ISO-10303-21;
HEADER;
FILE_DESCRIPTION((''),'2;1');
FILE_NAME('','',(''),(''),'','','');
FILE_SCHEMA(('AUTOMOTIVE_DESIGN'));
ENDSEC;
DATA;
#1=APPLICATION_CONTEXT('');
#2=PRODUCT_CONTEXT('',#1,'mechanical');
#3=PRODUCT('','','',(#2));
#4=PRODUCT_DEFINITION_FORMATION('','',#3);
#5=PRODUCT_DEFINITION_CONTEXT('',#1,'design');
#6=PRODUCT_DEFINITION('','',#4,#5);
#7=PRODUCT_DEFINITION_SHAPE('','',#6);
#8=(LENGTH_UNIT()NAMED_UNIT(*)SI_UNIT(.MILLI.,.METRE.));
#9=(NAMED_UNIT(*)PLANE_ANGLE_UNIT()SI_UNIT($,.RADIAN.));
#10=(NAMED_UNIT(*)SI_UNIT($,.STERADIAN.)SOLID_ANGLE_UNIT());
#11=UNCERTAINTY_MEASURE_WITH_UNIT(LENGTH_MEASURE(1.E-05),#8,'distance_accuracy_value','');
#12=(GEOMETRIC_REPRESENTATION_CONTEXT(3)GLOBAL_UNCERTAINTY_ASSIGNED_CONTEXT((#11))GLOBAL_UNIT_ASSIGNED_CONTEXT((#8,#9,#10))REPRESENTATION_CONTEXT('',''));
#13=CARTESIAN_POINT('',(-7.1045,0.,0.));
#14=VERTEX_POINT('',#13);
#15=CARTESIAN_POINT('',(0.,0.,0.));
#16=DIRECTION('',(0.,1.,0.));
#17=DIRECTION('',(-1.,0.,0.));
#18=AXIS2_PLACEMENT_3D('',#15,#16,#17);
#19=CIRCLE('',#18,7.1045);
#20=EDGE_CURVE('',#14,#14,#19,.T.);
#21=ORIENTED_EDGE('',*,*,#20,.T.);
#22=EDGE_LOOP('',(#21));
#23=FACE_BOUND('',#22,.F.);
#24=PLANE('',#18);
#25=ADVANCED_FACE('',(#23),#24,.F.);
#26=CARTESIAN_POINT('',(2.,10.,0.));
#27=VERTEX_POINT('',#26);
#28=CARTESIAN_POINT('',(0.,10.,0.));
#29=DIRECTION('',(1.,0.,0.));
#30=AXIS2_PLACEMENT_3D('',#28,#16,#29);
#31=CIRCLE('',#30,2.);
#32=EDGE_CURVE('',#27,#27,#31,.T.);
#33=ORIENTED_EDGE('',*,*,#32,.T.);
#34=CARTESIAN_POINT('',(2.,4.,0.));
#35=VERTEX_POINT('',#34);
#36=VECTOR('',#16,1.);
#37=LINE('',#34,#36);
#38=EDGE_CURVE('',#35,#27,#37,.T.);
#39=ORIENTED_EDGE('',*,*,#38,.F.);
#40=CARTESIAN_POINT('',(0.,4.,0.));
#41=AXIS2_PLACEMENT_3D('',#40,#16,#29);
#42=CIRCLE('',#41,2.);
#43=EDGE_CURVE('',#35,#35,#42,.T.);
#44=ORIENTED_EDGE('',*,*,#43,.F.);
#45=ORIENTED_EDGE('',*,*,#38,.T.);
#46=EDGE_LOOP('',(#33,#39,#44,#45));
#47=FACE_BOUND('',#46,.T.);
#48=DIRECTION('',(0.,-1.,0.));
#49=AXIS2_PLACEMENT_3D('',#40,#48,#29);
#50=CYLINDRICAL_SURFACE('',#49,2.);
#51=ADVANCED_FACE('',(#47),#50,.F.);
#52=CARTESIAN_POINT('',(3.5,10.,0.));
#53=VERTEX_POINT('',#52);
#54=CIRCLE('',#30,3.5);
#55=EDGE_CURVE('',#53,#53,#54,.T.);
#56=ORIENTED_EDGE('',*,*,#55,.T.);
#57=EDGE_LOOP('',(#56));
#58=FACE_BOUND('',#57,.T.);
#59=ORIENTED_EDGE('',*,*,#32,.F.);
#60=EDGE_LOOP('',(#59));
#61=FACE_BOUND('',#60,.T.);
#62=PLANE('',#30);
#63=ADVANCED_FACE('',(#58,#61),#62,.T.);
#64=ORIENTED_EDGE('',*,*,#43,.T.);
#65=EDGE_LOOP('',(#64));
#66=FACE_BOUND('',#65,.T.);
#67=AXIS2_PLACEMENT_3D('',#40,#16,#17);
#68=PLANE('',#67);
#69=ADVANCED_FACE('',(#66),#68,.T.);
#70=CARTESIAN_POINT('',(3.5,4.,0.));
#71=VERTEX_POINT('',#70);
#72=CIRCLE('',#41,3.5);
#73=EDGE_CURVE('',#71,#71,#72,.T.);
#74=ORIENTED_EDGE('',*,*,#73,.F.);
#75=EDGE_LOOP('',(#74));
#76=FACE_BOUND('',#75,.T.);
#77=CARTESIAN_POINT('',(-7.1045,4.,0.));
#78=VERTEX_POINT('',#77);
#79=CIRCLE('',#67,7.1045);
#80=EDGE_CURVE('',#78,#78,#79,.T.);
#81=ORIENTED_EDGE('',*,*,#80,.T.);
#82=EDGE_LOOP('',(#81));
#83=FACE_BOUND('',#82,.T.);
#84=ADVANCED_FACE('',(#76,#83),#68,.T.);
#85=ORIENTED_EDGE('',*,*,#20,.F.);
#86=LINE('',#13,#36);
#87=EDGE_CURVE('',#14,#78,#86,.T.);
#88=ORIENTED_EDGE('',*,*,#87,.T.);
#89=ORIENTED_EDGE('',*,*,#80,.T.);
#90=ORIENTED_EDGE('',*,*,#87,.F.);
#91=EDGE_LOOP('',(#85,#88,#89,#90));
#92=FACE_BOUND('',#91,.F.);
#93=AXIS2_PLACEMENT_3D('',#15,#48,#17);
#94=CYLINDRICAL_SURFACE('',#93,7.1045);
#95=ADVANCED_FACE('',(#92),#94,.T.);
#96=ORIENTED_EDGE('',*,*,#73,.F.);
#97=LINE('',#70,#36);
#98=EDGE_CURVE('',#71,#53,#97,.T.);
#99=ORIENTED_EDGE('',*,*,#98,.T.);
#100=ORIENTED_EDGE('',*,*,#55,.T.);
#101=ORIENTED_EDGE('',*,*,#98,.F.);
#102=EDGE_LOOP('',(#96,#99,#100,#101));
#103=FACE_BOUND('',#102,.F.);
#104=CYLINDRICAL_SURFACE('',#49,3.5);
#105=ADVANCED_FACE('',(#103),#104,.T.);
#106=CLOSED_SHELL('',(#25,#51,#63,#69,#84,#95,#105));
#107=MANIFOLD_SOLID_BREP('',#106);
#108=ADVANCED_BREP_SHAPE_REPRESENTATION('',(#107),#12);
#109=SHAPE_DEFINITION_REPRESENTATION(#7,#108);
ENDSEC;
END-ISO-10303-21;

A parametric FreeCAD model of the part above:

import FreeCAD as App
import Part
import Sketcher

V = App.Vector
Q = App.Units.Quantity

doc = App.newDocument("Part")
body = doc.addObject("PartDesign::Body", "Body")

# Sketch on XZ plane
sketch1 = body.newObject("Sketcher::SketchObject", "Sketch")
sketch1.AttachmentSupport = (doc.getObject("XZ_Plane"), [""])
sketch1.MapMode = "FlatFace"
sketch1.addGeometry(Part.Circle(V(0, 0, 0), V(0, 0, 1), 7.1045), False)
sketch1.addConstraint([
    Sketcher.Constraint("Coincident", 0, 3, -1, 1),
    Sketcher.Constraint("Diameter", 0, Q("14.209 mm")),
])
pad1 = body.newObject("PartDesign::Pad", "Pad")
pad1.Profile = sketch1
pad1.Length = 4
pad1.Reversed = True

# Sketch on XZ plane
sketch2 = body.newObject("Sketcher::SketchObject", "Sketch001")
sketch2.AttachmentSupport = (doc.getObject("XZ_Plane"), [""])
sketch2.MapMode = "FlatFace"
sketch2.AttachmentOffset = App.Placement(V(0, 0, -4), App.Rotation())
sketch2.addGeometry([
    Part.Circle(V(0, 0, 0), V(0, 0, 1), 3.5),
    Part.Circle(V(0, 0, 0), V(0, 0, 1), 2),
], False)
sketch2.addConstraint([
    Sketcher.Constraint("Coincident", 0, 3, -1, 1),
    Sketcher.Constraint("Coincident", 1, 3, -1, 1),
    Sketcher.Constraint("Diameter", 0, Q("7 mm")),
    Sketcher.Constraint("Diameter", 1, Q("4 mm")),
])
pad2 = body.newObject("PartDesign::Pad", "Pad001")
pad2.Profile = sketch2
pad2.Length = 6
pad2.Reversed = True

doc.recompute()
